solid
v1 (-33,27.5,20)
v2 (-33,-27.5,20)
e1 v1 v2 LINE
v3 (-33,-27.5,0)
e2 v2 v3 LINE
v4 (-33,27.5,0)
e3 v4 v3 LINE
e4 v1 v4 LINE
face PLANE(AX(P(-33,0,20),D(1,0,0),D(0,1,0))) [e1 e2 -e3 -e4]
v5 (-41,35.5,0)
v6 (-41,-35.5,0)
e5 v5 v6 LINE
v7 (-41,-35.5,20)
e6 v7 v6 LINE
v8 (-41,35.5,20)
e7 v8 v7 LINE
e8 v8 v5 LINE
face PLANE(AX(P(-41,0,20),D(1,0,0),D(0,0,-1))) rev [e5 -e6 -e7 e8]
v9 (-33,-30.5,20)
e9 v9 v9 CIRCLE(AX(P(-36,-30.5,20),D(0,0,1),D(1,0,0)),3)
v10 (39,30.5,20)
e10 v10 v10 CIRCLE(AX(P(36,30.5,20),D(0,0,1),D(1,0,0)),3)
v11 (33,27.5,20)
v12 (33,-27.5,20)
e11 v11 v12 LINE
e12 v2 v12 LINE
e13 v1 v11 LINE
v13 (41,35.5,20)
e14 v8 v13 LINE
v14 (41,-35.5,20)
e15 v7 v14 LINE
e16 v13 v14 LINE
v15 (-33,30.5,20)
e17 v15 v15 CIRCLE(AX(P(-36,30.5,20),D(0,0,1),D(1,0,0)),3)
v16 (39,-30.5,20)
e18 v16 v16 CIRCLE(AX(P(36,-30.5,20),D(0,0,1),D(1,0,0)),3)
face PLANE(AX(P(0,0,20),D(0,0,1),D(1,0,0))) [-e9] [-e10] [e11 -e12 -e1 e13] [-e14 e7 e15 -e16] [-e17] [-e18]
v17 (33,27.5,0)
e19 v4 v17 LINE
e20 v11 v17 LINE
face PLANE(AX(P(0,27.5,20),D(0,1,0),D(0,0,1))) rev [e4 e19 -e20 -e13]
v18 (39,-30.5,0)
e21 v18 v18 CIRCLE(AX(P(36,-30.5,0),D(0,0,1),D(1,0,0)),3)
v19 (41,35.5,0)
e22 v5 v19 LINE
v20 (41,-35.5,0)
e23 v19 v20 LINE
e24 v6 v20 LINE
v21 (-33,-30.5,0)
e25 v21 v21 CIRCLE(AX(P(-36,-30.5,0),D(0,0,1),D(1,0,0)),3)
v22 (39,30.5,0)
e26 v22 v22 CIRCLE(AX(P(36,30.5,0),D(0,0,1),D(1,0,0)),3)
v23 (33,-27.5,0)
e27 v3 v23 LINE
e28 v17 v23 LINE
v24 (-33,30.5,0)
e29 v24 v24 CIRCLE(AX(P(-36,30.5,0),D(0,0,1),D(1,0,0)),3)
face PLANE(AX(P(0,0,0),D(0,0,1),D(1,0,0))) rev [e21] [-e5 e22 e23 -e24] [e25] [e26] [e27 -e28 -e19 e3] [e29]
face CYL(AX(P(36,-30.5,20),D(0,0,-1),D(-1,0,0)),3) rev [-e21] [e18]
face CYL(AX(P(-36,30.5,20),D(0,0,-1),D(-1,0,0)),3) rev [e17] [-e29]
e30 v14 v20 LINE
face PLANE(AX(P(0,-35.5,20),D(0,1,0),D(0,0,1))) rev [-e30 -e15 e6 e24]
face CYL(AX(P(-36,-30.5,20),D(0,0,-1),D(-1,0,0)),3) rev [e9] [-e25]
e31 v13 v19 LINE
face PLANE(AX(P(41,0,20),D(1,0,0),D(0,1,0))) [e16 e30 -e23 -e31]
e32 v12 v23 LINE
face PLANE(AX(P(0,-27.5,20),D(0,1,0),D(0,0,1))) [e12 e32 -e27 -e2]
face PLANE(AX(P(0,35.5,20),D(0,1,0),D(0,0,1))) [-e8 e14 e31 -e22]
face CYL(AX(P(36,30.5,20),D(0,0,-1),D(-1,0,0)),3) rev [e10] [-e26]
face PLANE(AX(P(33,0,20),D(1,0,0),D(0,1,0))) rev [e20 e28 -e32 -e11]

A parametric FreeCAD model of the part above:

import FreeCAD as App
import Part
import Sketcher

V = App.Vector
Q = App.Units.Quantity


def add_polygon(sketch, points):
    """Adds a closed chain of lines whose ends are joined by coincident constraints."""
    first, n = sketch.GeometryCount, len(points)
    for a, b in zip(points, points[1:] + points[:1]):
        sketch.addGeometry(Part.LineSegment(App.Vector(*a, 0), App.Vector(*b, 0)), False)
    for i in range(n):
        sketch.addConstraint(Sketcher.Constraint("Coincident", first + i, 2, first + (i + 1) % n, 1))

doc = App.newDocument("Part")
params = doc.addObject("Spreadsheet::Sheet", "Params")
for row, (alias, value) in enumerate([
    ("sketch1_diameter", "6 mm"),
    ("sketch1_width", "82 mm"),
    ("sketch1_width2", "66 mm"),
    ("sketch1_height", "71 mm"),
    ("sketch1_height2", "55 mm"),
    ("pad1_length", "20 mm"),
    ("sketch2_diameter", "6 mm"),
    ("pocket1_length", "20 mm"),
], start=1):
    params.set(f"A{row}", alias)
    params.set(f"B{row}", "=" + value)
    params.setAlias(f"B{row}", alias)

body = doc.addObject("PartDesign::Body", "Body")

# Sketch on XY plane
sketch1 = body.newObject("Sketcher::SketchObject", "Sketch")
sketch1.AttachmentSupport = (doc.getObject("XY_Plane"), [""])
sketch1.MapMode = "FlatFace"
add_polygon(sketch1, [(-41, 35.5), (-41, -35.5), (41, -35.5), (41, 35.5)])  # lines 0-3
sketch1.addGeometry(Part.Circle(V(-36, -30.5, 0), V(0, 0, 1), 3), False)  # 4
sketch1.addGeometry(Part.Circle(V(-36, 30.5, 0), V(0, 0, 1), 3), False)  # 5
add_polygon(sketch1, [(33, -27.5), (-33, -27.5), (-33, 27.5), (33, 27.5)])  # lines 6-9
sketch1.addConstraint(Sketcher.Constraint("Vertical", 0))
sketch1.addConstraint(Sketcher.Constraint("Horizontal", 1))
sketch1.addConstraint(Sketcher.Constraint("Vertical", 2))
sketch1.addConstraint(Sketcher.Constraint("Horizontal", 3))
sketch1.addConstraint(Sketcher.Constraint("Horizontal", 6))
sketch1.addConstraint(Sketcher.Constraint("Vertical", 7))
sketch1.addConstraint(Sketcher.Constraint("Horizontal", 8))
sketch1.addConstraint(Sketcher.Constraint("Vertical", 9))
sketch1.addConstraint(Sketcher.Constraint("Equal", 4, 5))
sketch1.addConstraint(Sketcher.Constraint("Symmetric", 0, 2, 2, 2, -1, 1))
sketch1.addConstraint(Sketcher.Constraint("Symmetric", 6, 2, 8, 2, -1, 1))
sketch1.addConstraint(Sketcher.Constraint("Symmetric", 4, 3, 5, 3, -1))
sketch1.addConstraint(Sketcher.Constraint("Diameter", 4, Q("6 mm")))
sketch1.addConstraint(Sketcher.Constraint("DistanceX", 1, 1, 1, 2, Q("82 mm")))
sketch1.addConstraint(Sketcher.Constraint("DistanceX", 6, 2, 6, 1, Q("66 mm")))
sketch1.addConstraint(Sketcher.Constraint("DistanceY", 0, 2, 0, 1, Q("71 mm")))
sketch1.addConstraint(Sketcher.Constraint("DistanceY", 7, 1, 7, 2, Q("55 mm")))
sketch1.addConstraint(Sketcher.Constraint("DistanceX", 4, 3, -1, 1, Q("36 mm")))
sketch1.addConstraint(Sketcher.Constraint("DistanceY", 4, 3, 5, 3, Q("61 mm")))
sketch1.setExpression("Constraints[20]", "Params.sketch1_diameter")
sketch1.setExpression("Constraints[21]", "Params.sketch1_width")
sketch1.setExpression("Constraints[22]", "Params.sketch1_width2")
sketch1.setExpression("Constraints[23]", "Params.sketch1_height")
sketch1.setExpression("Constraints[24]", "Params.sketch1_height2")
pad1 = body.newObject("PartDesign::Pad", "Pad")
pad1.Profile = sketch1
pad1.setExpression("Length", "Params.pad1_length")

# Sketch on XY plane
sketch2 = body.newObject("Sketcher::SketchObject", "Sketch001")
sketch2.AttachmentSupport = (doc.getObject("XY_Plane"), [""])
sketch2.MapMode = "FlatFace"
sketch2.addGeometry(Part.Circle(V(36, -30.5, 0), V(0, 0, 1), 3), False)
sketch2.addGeometry(Part.Circle(V(36, 30.5, 0), V(0, 0, 1), 3), False)
sketch2.addConstraint(Sketcher.Constraint("Equal", 0, 1))
sketch2.addConstraint(Sketcher.Constraint("Symmetric", 0, 3, 1, 3, -1))
sketch2.addConstraint(Sketcher.Constraint("Diameter", 0, Q("6 mm")))
sketch2.addConstraint(Sketcher.Constraint("DistanceX", -1, 1, 0, 3, Q("36 mm")))
sketch2.addConstraint(Sketcher.Constraint("DistanceY", 0, 3, 1, 3, Q("61 mm")))
sketch2.setExpression("Constraints[2]", "Params.sketch2_diameter")
pocket1 = body.newObject("PartDesign::Pocket", "Pocket")
pocket1.Profile = sketch2
pocket1.setExpression("Length", "Params.pocket1_length")
pocket1.Reversed = True

doc.recompute()
